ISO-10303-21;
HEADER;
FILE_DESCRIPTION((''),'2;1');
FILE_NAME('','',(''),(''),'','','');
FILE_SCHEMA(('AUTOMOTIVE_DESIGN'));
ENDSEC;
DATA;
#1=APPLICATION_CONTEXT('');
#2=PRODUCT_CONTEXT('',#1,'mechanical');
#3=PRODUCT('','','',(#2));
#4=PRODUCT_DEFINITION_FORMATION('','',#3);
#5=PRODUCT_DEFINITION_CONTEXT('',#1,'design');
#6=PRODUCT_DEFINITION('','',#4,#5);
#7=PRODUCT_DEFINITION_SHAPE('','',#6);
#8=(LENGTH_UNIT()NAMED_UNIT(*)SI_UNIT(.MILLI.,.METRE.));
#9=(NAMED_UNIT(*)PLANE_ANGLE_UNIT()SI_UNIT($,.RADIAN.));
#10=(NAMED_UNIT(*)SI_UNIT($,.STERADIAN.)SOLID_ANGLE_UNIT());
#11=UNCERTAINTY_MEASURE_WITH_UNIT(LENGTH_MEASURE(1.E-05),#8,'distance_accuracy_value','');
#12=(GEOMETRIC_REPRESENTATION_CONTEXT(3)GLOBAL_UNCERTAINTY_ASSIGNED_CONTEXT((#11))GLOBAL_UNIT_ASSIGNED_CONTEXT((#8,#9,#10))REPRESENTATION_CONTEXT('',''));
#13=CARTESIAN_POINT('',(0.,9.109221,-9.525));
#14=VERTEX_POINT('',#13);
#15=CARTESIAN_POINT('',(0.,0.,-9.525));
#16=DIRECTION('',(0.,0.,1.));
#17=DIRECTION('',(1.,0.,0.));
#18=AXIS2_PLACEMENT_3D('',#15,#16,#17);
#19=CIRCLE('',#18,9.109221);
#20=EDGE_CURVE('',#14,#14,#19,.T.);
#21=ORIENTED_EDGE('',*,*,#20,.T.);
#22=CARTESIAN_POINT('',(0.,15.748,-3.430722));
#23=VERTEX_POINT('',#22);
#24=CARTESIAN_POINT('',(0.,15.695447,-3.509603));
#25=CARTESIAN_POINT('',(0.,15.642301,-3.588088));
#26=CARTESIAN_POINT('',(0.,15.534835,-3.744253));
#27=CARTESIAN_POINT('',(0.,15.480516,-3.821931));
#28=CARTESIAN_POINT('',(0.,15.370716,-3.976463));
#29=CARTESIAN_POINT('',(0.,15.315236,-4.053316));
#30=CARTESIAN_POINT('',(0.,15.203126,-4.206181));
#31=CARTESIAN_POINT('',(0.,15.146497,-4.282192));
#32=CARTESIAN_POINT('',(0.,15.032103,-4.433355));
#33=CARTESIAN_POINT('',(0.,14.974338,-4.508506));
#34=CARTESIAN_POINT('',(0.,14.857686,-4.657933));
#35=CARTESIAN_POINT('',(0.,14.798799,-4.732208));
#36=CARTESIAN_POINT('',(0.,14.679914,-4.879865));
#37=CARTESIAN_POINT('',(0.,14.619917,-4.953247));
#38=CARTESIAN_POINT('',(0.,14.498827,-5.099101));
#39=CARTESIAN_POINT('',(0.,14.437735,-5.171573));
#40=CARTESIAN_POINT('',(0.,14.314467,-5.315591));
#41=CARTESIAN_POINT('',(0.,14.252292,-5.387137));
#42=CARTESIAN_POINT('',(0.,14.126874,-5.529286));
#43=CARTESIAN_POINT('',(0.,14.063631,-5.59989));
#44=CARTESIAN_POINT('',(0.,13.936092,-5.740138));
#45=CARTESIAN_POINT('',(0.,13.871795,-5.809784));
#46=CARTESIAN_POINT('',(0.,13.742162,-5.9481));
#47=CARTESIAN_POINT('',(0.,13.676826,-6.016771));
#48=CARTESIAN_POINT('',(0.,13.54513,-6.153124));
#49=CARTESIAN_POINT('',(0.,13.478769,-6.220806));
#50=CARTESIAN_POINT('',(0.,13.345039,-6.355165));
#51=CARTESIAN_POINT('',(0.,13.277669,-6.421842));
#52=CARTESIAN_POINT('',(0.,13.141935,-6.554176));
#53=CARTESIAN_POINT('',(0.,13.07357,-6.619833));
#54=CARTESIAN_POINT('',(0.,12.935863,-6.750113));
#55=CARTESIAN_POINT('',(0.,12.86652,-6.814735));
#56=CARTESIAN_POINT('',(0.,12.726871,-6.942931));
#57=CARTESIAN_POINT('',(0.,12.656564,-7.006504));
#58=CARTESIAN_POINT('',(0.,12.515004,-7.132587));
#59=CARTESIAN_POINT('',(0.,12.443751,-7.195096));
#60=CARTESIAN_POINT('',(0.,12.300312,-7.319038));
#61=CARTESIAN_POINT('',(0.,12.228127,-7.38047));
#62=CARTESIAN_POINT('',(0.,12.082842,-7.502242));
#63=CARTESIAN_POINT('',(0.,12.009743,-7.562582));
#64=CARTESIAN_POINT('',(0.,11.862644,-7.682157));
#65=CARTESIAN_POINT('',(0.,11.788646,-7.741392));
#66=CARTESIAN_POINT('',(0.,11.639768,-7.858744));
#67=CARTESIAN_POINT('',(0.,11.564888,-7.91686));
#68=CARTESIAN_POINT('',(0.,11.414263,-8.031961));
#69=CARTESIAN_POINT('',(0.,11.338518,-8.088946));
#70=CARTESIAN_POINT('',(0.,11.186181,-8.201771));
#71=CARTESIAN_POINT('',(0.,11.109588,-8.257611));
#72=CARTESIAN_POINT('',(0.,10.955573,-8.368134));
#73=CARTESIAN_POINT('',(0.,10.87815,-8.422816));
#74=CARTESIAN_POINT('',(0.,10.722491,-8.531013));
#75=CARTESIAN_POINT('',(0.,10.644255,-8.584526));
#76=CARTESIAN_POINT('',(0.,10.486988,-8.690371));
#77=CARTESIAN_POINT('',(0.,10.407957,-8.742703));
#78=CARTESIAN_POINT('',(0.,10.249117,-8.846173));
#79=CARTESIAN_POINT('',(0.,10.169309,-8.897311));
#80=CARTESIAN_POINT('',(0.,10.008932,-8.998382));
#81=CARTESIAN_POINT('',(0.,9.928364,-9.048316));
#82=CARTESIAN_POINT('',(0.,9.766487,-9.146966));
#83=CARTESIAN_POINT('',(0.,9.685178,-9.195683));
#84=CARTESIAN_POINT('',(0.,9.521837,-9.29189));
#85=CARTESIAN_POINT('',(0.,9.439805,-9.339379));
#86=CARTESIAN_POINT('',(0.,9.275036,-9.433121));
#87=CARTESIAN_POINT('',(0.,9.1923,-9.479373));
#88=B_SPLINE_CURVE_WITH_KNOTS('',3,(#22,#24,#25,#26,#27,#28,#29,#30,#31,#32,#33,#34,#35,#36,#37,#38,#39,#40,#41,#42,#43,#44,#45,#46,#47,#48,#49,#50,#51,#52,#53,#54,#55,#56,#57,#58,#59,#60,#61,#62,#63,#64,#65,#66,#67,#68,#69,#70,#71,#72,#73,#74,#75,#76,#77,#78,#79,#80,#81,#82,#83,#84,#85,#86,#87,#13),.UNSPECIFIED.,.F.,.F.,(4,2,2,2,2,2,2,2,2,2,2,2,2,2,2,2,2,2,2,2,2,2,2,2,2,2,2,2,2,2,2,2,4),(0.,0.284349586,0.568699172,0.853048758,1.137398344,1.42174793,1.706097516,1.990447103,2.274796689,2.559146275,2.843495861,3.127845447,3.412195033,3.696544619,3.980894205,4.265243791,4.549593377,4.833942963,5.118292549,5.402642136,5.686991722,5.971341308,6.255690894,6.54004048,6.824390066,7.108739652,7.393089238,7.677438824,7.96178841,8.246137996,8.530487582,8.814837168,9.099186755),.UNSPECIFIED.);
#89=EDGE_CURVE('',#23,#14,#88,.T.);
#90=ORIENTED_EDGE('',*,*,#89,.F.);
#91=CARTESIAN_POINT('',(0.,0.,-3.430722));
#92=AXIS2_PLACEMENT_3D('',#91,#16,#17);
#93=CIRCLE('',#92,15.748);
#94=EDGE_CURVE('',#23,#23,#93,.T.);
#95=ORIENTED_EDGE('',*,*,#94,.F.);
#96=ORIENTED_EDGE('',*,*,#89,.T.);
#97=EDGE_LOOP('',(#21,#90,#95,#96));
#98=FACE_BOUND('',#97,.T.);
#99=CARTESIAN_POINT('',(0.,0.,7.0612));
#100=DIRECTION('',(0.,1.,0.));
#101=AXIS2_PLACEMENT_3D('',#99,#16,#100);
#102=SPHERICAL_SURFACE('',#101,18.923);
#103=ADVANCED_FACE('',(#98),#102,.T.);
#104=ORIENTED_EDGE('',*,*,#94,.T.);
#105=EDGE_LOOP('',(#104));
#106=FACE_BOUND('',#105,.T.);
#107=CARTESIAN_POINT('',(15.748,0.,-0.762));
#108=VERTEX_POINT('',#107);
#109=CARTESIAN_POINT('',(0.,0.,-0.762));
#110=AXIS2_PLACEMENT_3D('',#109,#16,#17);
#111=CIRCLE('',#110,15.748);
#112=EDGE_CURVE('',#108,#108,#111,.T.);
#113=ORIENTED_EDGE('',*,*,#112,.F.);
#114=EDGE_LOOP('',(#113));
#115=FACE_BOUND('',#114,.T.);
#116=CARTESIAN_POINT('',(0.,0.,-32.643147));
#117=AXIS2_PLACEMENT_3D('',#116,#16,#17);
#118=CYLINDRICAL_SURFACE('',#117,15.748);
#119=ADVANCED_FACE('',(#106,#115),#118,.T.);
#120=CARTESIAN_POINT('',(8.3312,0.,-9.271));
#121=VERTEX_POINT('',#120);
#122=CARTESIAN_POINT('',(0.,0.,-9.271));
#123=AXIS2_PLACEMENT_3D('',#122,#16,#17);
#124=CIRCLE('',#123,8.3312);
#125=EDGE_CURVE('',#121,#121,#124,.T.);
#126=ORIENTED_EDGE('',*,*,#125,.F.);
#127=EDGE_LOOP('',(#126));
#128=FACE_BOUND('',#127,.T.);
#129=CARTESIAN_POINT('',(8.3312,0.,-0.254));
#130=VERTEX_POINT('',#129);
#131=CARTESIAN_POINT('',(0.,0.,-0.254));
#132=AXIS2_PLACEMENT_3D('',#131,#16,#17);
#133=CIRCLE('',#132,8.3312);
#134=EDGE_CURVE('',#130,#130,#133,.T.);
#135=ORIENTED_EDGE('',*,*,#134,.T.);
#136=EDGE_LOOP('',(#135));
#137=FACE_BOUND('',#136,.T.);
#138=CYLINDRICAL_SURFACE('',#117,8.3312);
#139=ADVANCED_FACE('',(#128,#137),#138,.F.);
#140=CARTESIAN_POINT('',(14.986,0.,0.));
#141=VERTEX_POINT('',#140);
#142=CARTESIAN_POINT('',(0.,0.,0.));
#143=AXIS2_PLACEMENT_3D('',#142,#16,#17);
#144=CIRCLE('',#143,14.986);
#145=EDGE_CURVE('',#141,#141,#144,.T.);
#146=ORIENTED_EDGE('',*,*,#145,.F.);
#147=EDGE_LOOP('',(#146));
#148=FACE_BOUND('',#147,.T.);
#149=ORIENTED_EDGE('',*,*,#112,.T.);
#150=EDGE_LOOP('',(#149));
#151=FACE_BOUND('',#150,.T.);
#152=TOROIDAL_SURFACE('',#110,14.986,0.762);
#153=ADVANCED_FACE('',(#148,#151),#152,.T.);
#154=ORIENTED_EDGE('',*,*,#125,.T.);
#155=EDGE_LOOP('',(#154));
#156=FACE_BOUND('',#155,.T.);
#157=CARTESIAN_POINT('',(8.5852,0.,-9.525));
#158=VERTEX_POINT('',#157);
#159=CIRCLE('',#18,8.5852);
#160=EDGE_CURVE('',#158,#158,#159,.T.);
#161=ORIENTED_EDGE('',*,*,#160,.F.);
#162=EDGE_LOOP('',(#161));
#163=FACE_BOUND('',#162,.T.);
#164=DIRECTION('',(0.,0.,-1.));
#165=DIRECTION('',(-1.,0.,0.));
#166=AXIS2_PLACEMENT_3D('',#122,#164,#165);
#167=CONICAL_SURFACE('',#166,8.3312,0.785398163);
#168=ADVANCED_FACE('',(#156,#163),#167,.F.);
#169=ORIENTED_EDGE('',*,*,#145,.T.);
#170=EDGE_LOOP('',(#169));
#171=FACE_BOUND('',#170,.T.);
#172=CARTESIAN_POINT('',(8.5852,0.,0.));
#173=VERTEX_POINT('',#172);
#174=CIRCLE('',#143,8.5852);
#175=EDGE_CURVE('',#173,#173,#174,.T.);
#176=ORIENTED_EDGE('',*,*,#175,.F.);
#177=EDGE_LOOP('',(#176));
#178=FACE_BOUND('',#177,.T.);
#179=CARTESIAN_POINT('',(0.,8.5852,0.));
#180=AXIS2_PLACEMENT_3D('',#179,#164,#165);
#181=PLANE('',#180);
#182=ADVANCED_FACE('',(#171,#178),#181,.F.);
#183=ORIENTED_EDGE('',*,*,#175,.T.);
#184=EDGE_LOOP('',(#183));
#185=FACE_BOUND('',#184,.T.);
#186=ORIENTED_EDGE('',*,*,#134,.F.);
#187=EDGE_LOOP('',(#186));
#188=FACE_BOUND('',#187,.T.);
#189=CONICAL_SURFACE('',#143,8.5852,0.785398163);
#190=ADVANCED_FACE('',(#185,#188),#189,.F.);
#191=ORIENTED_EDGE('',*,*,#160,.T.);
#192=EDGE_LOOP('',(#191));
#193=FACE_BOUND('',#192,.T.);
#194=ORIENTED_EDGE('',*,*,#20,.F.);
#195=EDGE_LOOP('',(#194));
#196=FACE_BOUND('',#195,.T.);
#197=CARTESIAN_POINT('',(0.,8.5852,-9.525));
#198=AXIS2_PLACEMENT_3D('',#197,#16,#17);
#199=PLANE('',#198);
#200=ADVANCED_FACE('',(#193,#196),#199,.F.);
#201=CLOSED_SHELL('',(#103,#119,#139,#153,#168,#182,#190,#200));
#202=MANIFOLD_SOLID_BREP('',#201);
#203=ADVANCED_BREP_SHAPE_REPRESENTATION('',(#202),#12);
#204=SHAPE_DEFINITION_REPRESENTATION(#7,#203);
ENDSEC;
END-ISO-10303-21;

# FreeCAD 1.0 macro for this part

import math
import FreeCAD as App
import Part
import Sketcher

V = App.Vector
Q = App.Units.Quantity

doc = App.newDocument("Part")
body = doc.addObject("PartDesign::Body", "Body")

sketch1 = doc.addObject("Sketcher::SketchObject", "Sketch")
body.addObject(sketch1)
sketch1.AttachmentSupport = (doc.YZ_Plane, [""])
sketch1.MapMode = "FlatFace"
sketch1.addGeometry([
    Part.LineSegment(V(8.33, -9.27, 0), V(8.59, -9.53, 0)),
    Part.LineSegment(V(8.59, -9.53, 0), V(9.11, -9.53, 0)),
    Part.ArcOfCircle(Part.Circle(V(0, 7.06, 0), V(0, 0, 1), 18.92), math.radians(-61), math.radians(-34)),
    Part.LineSegment(V(15.75, -3.43, 0), V(15.75, -0.76, 0)),
    Part.ArcOfCircle(Part.Circle(V(14.99, -0.76, 0), V(0, 0, 1), 0.76), math.radians(0), math.radians(90)),
    Part.LineSegment(V(14.99, 0, 0), V(8.59, 0, 0)),
    Part.LineSegment(V(8.59, 0, 0), V(8.33, -0.25, 0)),
    Part.LineSegment(V(8.33, -0.25, 0), V(8.33, -9.27, 0)),
], False)
sketch1.addConstraint([
    Sketcher.Constraint("Coincident", 0, 2, 1, 1),
    Sketcher.Constraint("Coincident", 1, 2, 2, 1),
    Sketcher.Constraint("Coincident", 2, 2, 3, 1),
    Sketcher.Constraint("Tangent", 3, 2, 4, 1),
    Sketcher.Constraint("Tangent", 4, 2, 5, 1),
    Sketcher.Constraint("Coincident", 5, 2, 6, 1),
    Sketcher.Constraint("Coincident", 6, 2, 7, 1),
    Sketcher.Constraint("Coincident", 7, 2, 0, 1),
    Sketcher.Constraint("Horizontal", 1),
    Sketcher.Constraint("Vertical", 3),
    Sketcher.Constraint("Horizontal", 5),
    Sketcher.Constraint("Vertical", 7),
    Sketcher.Constraint("PointOnObject", 2, 3, -2),
    Sketcher.Constraint("PointOnObject", 4, 2, -1),
    Sketcher.Constraint("Perpendicular", 0, 6),
    Sketcher.Constraint("Vertical", 0, 2, 5, 2),
    Sketcher.Constraint("Equal", 0, 6),
    Sketcher.Constraint("Radius", 4, Q("0.03 in")),
    Sketcher.Constraint("Radius", 2, Q("0.745 in")),
    Sketcher.Constraint("DistanceX", 5, 2, 5, 1, Q("0.252 in")),
    Sketcher.Constraint("DistanceY", 7, 2, 7, 1, Q("0.355 in")),
    Sketcher.Constraint("DistanceX", -1, 1, 4, 3, Q("0.59 in")),
    Sketcher.Constraint("DistanceY", 6, 2, -1, 1, Q("0.01 in")),
    Sketcher.Constraint("DistanceY", -1, 1, 2, 3, Q("0.278 in")),
])
revolution = doc.addObject("PartDesign::Revolution", "Revolution")
body.addObject(revolution)
revolution.Profile = sketch1
revolution.ReferenceAxis = (sketch1, ["V_Axis"])
revolution.Angle = 360

doc.recompute()
